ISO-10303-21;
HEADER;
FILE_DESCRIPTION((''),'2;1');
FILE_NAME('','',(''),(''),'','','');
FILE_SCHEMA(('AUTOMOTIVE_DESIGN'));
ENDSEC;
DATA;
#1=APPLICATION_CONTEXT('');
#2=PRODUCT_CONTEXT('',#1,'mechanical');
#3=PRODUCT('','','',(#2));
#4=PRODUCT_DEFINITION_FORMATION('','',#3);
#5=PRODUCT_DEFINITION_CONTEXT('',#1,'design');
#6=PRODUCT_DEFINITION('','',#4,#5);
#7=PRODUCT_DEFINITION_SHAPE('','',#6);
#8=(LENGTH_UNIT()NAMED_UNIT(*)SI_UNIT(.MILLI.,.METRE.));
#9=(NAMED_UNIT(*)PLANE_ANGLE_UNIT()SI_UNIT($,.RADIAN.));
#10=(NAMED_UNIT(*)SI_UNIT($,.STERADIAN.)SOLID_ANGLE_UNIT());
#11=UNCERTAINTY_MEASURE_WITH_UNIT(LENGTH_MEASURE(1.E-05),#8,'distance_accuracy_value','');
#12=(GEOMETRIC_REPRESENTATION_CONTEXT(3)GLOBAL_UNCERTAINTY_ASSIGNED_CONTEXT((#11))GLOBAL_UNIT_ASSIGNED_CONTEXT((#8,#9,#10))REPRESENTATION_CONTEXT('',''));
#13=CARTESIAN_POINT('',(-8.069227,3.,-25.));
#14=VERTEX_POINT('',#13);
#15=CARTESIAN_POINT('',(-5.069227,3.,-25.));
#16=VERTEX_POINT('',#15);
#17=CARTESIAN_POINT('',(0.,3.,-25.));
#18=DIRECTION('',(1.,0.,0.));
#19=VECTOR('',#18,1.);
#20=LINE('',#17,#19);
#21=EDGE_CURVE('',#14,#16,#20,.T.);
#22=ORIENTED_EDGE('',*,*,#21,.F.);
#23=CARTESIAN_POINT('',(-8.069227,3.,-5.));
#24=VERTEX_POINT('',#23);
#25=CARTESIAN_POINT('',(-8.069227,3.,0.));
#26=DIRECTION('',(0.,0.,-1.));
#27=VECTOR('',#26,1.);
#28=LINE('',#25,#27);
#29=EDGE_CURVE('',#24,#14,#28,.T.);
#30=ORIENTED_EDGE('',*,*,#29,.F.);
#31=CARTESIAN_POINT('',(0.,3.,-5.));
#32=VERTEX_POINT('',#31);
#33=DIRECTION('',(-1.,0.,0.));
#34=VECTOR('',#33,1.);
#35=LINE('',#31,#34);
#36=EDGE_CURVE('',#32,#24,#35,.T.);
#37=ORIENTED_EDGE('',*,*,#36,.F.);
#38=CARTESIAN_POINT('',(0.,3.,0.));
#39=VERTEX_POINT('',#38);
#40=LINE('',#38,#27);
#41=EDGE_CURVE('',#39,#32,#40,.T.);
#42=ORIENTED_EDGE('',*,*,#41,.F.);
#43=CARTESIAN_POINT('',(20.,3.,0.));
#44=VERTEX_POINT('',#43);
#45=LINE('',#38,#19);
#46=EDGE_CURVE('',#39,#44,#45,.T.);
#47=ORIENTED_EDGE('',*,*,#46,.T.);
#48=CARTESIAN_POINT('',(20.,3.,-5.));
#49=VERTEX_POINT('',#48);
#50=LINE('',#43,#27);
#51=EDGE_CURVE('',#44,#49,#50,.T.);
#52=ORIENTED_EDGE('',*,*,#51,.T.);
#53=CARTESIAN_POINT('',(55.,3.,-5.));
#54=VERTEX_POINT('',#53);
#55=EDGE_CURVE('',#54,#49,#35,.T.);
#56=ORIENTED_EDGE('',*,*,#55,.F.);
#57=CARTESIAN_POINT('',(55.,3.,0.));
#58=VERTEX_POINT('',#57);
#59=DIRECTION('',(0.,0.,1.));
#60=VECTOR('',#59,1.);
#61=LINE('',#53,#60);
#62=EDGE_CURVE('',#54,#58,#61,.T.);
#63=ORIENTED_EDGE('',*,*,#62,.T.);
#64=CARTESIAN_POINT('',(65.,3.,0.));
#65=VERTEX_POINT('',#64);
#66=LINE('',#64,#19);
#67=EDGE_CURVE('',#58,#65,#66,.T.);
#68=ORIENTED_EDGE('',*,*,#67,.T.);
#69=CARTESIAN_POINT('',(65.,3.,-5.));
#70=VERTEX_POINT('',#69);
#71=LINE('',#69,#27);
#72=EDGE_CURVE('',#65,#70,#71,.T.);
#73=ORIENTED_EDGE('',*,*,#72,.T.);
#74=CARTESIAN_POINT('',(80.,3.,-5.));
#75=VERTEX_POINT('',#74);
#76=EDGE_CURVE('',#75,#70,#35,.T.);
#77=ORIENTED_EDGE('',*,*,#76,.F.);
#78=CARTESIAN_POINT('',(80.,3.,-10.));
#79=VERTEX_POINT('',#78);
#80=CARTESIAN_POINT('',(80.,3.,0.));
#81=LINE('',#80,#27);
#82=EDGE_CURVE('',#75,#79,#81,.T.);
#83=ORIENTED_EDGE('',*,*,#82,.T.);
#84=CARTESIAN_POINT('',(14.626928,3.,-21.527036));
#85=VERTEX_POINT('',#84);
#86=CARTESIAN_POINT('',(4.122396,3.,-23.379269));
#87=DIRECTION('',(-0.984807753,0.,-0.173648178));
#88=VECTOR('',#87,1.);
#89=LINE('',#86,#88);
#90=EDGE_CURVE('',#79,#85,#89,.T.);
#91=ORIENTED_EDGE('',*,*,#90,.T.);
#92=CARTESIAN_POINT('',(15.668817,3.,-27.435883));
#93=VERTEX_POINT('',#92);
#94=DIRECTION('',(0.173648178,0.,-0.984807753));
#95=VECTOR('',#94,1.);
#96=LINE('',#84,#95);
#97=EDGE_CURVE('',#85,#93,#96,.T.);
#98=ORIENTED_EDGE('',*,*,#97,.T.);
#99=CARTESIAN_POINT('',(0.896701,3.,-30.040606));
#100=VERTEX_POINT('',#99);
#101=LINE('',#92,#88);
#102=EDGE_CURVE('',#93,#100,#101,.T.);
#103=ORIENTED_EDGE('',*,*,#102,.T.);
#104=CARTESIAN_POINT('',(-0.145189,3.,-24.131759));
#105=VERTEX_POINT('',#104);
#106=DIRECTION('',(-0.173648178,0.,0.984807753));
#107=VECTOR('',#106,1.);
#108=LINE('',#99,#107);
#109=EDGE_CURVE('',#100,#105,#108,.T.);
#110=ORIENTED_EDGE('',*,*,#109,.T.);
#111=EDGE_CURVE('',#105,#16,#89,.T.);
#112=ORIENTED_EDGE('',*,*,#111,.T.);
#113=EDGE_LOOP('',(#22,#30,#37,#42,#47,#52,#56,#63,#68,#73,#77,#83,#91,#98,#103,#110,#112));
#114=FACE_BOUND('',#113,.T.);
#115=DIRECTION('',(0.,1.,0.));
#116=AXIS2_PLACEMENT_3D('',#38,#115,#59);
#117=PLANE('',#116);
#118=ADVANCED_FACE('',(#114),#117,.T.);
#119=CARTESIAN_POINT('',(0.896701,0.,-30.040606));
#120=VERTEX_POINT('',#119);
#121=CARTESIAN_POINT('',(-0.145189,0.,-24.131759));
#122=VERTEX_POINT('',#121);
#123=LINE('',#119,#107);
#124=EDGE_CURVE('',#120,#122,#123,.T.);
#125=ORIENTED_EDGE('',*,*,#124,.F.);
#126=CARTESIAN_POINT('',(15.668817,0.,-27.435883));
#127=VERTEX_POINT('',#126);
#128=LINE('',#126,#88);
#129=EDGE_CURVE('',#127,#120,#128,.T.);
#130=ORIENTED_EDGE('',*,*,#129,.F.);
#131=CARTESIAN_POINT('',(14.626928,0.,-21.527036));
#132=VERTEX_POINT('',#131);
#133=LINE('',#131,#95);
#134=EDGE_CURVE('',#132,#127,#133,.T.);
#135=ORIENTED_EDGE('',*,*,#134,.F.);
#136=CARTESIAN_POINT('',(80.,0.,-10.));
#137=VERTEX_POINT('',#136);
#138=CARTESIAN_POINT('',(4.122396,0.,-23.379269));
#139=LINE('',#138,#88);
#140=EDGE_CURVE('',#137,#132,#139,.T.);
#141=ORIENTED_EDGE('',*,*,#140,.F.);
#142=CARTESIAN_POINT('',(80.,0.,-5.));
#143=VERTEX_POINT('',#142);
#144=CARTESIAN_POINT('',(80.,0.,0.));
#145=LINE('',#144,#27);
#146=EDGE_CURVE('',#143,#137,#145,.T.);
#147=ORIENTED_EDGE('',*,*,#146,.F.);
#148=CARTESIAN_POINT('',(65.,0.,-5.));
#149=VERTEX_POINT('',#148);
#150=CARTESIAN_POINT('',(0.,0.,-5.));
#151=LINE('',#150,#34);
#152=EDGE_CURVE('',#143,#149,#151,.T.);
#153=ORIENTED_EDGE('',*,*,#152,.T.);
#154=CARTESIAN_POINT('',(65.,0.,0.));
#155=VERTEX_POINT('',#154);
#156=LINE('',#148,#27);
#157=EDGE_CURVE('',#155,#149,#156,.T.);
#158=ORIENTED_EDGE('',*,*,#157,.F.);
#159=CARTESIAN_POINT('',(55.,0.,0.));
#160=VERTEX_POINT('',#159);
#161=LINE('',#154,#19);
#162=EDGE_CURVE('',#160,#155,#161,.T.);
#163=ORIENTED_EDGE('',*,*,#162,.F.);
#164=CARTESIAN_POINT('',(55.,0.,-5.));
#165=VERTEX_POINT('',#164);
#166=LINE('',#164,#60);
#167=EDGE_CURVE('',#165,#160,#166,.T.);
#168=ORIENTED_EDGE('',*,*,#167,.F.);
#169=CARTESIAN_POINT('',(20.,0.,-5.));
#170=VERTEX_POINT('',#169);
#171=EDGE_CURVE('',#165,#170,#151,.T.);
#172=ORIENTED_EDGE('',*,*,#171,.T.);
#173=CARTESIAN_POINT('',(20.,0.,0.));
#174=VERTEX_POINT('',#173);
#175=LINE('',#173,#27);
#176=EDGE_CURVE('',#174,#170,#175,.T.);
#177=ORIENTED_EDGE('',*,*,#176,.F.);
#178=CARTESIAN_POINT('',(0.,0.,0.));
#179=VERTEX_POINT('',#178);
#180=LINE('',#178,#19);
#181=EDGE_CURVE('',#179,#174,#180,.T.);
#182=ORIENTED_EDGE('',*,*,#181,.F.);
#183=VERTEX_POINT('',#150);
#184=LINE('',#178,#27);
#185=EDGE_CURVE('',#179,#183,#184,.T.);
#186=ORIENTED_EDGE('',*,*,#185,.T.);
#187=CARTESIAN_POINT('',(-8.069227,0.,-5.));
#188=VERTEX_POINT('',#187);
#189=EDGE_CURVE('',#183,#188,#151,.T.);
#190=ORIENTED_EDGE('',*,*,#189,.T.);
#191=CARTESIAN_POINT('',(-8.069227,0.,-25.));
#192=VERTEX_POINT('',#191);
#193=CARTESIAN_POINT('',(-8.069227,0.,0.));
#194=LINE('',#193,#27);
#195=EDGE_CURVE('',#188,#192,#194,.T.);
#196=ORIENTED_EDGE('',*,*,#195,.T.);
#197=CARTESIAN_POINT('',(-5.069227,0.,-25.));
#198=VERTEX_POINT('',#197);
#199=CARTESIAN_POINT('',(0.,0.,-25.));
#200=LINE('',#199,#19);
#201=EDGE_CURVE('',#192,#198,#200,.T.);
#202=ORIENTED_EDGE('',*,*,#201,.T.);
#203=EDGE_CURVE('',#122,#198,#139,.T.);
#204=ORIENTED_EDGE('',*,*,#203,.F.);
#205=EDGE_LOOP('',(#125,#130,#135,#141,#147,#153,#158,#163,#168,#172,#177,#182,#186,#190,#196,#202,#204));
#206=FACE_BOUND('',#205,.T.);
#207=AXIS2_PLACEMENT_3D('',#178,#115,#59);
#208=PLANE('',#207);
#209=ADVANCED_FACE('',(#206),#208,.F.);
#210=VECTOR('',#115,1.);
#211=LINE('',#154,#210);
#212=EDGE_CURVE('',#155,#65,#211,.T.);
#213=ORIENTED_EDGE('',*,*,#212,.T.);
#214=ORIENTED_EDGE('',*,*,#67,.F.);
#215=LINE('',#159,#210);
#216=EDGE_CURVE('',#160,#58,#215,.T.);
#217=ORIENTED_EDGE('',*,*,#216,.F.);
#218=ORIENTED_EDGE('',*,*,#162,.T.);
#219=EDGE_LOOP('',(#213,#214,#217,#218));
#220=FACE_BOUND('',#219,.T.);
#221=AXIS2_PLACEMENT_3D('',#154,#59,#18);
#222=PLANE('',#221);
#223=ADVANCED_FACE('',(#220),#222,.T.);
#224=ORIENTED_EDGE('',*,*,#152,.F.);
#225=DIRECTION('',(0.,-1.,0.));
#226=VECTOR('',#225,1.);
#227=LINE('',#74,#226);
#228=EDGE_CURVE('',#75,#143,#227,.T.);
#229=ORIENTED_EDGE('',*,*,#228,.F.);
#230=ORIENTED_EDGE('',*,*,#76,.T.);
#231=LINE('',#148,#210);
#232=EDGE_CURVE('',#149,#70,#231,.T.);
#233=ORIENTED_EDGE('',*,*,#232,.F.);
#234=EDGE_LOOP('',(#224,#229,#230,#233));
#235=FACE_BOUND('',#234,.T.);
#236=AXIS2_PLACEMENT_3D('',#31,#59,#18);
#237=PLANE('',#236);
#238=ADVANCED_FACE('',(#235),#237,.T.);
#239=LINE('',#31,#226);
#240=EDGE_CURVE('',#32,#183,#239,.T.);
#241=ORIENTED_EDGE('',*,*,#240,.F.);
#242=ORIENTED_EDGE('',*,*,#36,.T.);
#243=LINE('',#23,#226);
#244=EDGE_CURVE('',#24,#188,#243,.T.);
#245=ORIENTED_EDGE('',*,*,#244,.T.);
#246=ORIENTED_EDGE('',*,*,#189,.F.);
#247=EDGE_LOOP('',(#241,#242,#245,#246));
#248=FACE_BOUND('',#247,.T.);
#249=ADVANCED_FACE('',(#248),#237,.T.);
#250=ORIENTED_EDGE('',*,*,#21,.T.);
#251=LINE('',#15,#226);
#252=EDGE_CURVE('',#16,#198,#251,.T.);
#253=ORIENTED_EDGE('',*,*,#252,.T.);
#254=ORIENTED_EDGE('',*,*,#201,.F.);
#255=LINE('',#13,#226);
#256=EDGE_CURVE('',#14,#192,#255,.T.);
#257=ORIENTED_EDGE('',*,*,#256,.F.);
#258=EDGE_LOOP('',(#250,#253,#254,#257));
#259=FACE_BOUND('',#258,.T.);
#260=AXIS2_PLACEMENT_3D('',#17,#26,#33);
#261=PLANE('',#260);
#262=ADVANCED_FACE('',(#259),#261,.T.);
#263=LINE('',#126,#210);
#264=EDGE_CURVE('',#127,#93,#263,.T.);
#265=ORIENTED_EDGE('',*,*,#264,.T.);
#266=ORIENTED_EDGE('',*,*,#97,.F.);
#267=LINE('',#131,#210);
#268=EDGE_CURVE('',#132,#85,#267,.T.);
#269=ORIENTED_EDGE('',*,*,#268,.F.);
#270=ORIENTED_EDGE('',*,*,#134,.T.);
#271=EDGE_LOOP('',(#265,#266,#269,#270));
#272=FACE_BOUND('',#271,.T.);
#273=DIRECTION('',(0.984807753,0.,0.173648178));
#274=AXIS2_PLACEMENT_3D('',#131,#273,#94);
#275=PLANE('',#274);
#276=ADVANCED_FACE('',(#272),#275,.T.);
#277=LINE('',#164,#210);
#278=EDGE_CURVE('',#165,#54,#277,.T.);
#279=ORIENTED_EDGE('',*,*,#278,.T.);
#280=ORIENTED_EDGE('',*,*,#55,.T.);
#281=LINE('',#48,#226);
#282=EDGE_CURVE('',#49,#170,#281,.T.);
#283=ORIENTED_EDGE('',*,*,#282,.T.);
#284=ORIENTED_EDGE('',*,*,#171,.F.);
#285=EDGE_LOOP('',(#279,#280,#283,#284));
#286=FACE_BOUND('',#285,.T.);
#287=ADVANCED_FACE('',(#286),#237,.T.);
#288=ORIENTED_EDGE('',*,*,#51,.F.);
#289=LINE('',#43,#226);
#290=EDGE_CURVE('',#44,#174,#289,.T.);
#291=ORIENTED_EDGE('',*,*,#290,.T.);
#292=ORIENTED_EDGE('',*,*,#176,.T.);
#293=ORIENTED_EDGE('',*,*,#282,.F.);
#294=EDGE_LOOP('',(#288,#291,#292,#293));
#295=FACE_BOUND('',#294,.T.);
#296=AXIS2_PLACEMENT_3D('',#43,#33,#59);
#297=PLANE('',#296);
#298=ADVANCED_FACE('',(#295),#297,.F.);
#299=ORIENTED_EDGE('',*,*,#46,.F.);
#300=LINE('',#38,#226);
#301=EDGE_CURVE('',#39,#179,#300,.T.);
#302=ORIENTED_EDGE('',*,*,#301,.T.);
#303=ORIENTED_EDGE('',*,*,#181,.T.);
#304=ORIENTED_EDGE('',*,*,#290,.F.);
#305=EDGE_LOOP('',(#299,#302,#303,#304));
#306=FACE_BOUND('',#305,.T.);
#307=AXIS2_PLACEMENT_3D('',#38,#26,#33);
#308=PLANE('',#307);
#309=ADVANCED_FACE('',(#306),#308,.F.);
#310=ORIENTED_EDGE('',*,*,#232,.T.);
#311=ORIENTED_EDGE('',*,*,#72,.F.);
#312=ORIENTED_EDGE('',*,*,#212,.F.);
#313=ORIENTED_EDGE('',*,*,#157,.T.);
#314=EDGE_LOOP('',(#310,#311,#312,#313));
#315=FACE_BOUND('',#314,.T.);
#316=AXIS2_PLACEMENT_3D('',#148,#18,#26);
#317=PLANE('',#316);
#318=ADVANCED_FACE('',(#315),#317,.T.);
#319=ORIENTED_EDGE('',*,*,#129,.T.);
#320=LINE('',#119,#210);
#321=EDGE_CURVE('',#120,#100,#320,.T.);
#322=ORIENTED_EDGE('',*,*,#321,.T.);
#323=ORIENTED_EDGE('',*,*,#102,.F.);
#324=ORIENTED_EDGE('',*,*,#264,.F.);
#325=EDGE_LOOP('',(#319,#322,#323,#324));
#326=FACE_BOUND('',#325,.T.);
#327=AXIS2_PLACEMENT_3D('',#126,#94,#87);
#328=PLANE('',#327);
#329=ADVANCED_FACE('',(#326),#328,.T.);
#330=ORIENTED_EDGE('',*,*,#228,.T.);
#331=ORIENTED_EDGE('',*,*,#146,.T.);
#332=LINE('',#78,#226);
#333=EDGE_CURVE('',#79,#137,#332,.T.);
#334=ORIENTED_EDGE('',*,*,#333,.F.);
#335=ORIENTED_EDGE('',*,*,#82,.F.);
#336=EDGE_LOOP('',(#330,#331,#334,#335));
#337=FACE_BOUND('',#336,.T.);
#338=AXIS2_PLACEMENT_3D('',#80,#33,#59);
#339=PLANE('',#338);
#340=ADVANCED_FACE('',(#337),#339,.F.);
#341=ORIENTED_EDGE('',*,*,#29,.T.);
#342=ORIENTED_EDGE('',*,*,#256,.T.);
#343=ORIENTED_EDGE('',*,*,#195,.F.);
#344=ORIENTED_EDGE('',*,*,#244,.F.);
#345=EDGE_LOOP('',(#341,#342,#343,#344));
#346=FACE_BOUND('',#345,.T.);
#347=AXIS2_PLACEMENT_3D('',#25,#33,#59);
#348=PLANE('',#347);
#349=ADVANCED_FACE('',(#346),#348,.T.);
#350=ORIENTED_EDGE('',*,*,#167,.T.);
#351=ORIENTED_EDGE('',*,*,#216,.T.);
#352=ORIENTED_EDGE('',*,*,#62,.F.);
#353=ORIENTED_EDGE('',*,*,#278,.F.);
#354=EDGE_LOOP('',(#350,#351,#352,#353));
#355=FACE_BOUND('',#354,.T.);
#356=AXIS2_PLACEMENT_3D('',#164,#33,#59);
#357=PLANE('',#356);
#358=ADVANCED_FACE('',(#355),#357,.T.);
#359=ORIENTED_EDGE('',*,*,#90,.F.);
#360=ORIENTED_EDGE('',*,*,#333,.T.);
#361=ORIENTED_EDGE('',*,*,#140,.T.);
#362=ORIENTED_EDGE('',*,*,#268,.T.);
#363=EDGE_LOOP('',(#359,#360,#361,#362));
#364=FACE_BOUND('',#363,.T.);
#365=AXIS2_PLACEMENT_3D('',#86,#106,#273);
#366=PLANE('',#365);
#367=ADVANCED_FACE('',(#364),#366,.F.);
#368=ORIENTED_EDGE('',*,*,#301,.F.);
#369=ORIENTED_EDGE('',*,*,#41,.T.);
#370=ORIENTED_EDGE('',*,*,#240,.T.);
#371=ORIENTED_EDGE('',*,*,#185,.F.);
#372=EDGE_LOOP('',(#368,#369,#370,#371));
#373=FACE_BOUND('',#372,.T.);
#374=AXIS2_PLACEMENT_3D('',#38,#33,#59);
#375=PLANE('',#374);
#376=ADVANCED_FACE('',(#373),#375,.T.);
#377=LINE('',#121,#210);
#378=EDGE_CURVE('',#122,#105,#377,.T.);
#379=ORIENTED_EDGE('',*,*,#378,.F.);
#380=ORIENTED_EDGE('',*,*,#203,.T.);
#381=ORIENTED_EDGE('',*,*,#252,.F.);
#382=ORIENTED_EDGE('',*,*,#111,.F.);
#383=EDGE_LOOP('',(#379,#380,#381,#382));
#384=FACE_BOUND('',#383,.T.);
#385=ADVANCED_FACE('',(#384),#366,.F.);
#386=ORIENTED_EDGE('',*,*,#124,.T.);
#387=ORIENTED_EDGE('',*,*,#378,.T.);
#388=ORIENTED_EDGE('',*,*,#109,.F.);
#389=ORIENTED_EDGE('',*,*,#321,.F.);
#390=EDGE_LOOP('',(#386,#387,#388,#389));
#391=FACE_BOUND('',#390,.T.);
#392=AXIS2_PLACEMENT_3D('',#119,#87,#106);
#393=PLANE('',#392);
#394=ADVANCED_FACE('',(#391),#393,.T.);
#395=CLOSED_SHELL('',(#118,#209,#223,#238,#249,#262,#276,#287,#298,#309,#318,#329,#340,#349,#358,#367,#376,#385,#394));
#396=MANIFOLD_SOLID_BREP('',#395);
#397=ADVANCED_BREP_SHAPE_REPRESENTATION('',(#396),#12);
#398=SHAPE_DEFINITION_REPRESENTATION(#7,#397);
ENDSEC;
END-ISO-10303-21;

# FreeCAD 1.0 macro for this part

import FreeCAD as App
import Part
import Sketcher
from FreeCAD import Vector
Q = App.Units.Quantity

doc = App.newDocument("Part")
params = doc.addObject("Spreadsheet::Sheet", "Params")
for row, (alias, value) in enumerate([
    ("sketch1_width", "60 mm"),
    ("sketch1_width2", "3 mm"),
    ("sketch1_width3", "20 mm"),
    ("sketch1_height", "5 mm"),
    ("pad1_length", "3 mm"),
    ("sketch2_width", "10 mm"),
    ("sketch2_height", "5 mm"),
    ("pad2_length", "3 mm"),
    ("sketch3_length", "15 mm"),
    ("sketch3_length2", "6 mm"),
    ("pad3_length", "3 mm"),
], start=1):
    params.set(f"A{row}", alias)
    params.set(f"B{row}", "=" + value)
    params.setAlias(f"B{row}", alias)

body = doc.addObject("PartDesign::Body", "Body")

# Sketch on XZ plane
sketch1 = body.newObject("Sketcher::SketchObject", "Sketch")
sketch1.AttachmentSupport = (doc.getObject("XZ_Plane"), [""])
sketch1.MapMode = "FlatFace"
sketch1.addGeometry(Part.LineSegment(Vector(20, 0, 0), Vector(20, -5, 0)), False)
sketch1.addGeometry(Part.LineSegment(Vector(20, -5, 0), Vector(80, -5, 0)), False)
sketch1.addGeometry(Part.LineSegment(Vector(80, -5, 0), Vector(80, -10, 0)), False)
sketch1.addGeometry(Part.LineSegment(Vector(80, -10, 0), Vector(-5.1, -25, 0)), False)
sketch1.addGeometry(Part.LineSegment(Vector(-5.1, -25, 0), Vector(-8.1, -25, 0)), False)
sketch1.addGeometry(Part.LineSegment(Vector(-8.1, -25, 0), Vector(-8.1, -5, 0)), False)
sketch1.addGeometry(Part.LineSegment(Vector(-8.1, -5, 0), Vector(0, -5, 0)), False)
sketch1.addGeometry(Part.LineSegment(Vector(0, -5, 0), Vector(0, 0, 0)), False)
sketch1.addGeometry(Part.LineSegment(Vector(0, 0, 0), Vector(20, 0, 0)), False)
sketch1.addConstraint(Sketcher.Constraint("Coincident", 0, 2, 1, 1))
sketch1.addConstraint(Sketcher.Constraint("Coincident", 1, 2, 2, 1))
sketch1.addConstraint(Sketcher.Constraint("Coincident", 2, 2, 3, 1))
sketch1.addConstraint(Sketcher.Constraint("Coincident", 3, 2, 4, 1))
sketch1.addConstraint(Sketcher.Constraint("Coincident", 4, 2, 5, 1))
sketch1.addConstraint(Sketcher.Constraint("Coincident", 5, 2, 6, 1))
sketch1.addConstraint(Sketcher.Constraint("Coincident", 6, 2, 7, 1))
sketch1.addConstraint(Sketcher.Constraint("Coincident", 7, 2, 8, 1))
sketch1.addConstraint(Sketcher.Constraint("Coincident", 8, 2, 0, 1))
sketch1.addConstraint(Sketcher.Constraint("Vertical", 0))
sketch1.addConstraint(Sketcher.Constraint("Horizontal", 1))
sketch1.addConstraint(Sketcher.Constraint("Vertical", 2))
sketch1.addConstraint(Sketcher.Constraint("Horizontal", 4))
sketch1.addConstraint(Sketcher.Constraint("Vertical", 5))
sketch1.addConstraint(Sketcher.Constraint("Horizontal", 6))
sketch1.addConstraint(Sketcher.Constraint("Vertical", 7))
sketch1.addConstraint(Sketcher.Constraint("Horizontal", 8))
sketch1.addConstraint(Sketcher.Constraint("Coincident", 7, 2, -1, 1))
sketch1.addConstraint(Sketcher.Constraint("Horizontal", 1, 2, 5, 2))
sketch1.addConstraint(Sketcher.Constraint("Equal", 0, 2))
sketch1.addConstraint(Sketcher.Constraint("Equal", 8, 5))
sketch1.addConstraint(Sketcher.Constraint("DistanceX", 1, 1, 1, 2, 60.0))
sketch1.addConstraint(Sketcher.Constraint("DistanceX", 4, 2, 4, 1, 3.0))
sketch1.addConstraint(Sketcher.Constraint("DistanceX", 8, 1, 8, 2, 20.0))
sketch1.addConstraint(Sketcher.Constraint("DistanceY", 0, 2, 0, 1, 5.0))
sketch1.addConstraint(Sketcher.Constraint("Angle", 3, Q("-170 deg")))
sketch1.setExpression("Constraints[21]", "Params.sketch1_width")
sketch1.setExpression("Constraints[22]", "Params.sketch1_width2")
sketch1.setExpression("Constraints[23]", "Params.sketch1_width3")
sketch1.setExpression("Constraints[24]", "Params.sketch1_height")
pad1 = body.newObject("PartDesign::Pad", "Pad")
pad1.Profile = sketch1
pad1.setExpression("Length", "Params.pad1_length")
pad1.Reversed = True

# Sketch on XZ plane
sketch2 = body.newObject("Sketcher::SketchObject", "Sketch001")
sketch2.AttachmentSupport = (doc.getObject("XZ_Plane"), [""])
sketch2.MapMode = "FlatFace"
sketch2.AttachmentOffset = App.Placement(Vector(0, 0, -3), App.Rotation())
sketch2.addGeometry(Part.LineSegment(Vector(55, -5, 0), Vector(55, 0, 0)), False)
sketch2.addGeometry(Part.LineSegment(Vector(55, 0, 0), Vector(65, 0, 0)), False)
sketch2.addGeometry(Part.LineSegment(Vector(65, 0, 0), Vector(65, -5, 0)), False)
sketch2.addGeometry(Part.LineSegment(Vector(65, -5, 0), Vector(55, -5, 0)), False)
sketch2.addConstraint(Sketcher.Constraint("Coincident", 0, 2, 1, 1))
sketch2.addConstraint(Sketcher.Constraint("Coincident", 1, 2, 2, 1))
sketch2.addConstraint(Sketcher.Constraint("Coincident", 2, 2, 3, 1))
sketch2.addConstraint(Sketcher.Constraint("Coincident", 3, 2, 0, 1))
sketch2.addConstraint(Sketcher.Constraint("Vertical", 0))
sketch2.addConstraint(Sketcher.Constraint("Horizontal", 1))
sketch2.addConstraint(Sketcher.Constraint("Vertical", 2))
sketch2.addConstraint(Sketcher.Constraint("Horizontal", 3))
sketch2.addConstraint(Sketcher.Constraint("PointOnObject", 0, 2, -1))
sketch2.addConstraint(Sketcher.Constraint("DistanceX", 1, 1, 1, 2, 10.0))
sketch2.addConstraint(Sketcher.Constraint("DistanceY", 0, 1, 0, 2, 5.0))
sketch2.addConstraint(Sketcher.Constraint("DistanceX", -1, 1, 0, 2, 55.0))
sketch2.setExpression("Constraints[9]", "Params.sketch2_width")
sketch2.setExpression("Constraints[10]", "Params.sketch2_height")
pad2 = body.newObject("PartDesign::Pad", "Pad001")
pad2.Profile = sketch2
pad2.setExpression("Length", "Params.pad2_length")

# Sketch on XZ plane
sketch3 = body.newObject("Sketcher::SketchObject", "Sketch002")
sketch3.AttachmentSupport = (doc.getObject("XZ_Plane"), [""])
sketch3.MapMode = "FlatFace"
sketch3.AttachmentOffset = App.Placement(Vector(0, 0, -3), App.Rotation())
sketch3.addGeometry(Part.LineSegment(Vector(0, -24, 0), Vector(15, -22, 0)), False)
sketch3.addGeometry(Part.LineSegment(Vector(15, -22, 0), Vector(16, -27, 0)), False)
sketch3.addGeometry(Part.LineSegment(Vector(16, -27, 0), Vector(1, -30, 0)), False)
sketch3.addGeometry(Part.LineSegment(Vector(1, -30, 0), Vector(0, -24, 0)), False)
sketch3.addConstraint(Sketcher.Constraint("Coincident", 0, 2, 1, 1))
sketch3.addConstraint(Sketcher.Constraint("Coincident", 1, 2, 2, 1))
sketch3.addConstraint(Sketcher.Constraint("Coincident", 2, 2, 3, 1))
sketch3.addConstraint(Sketcher.Constraint("Coincident", 3, 2, 0, 1))
sketch3.addConstraint(Sketcher.Constraint("Perpendicular", 0, 1))
sketch3.addConstraint(Sketcher.Constraint("Perpendicular", 1, 2))
sketch3.addConstraint(Sketcher.Constraint("Perpendicular", 2, 3))
sketch3.addConstraint(Sketcher.Constraint("Angle", 0, Q("10 deg")))
sketch3.addConstraint(Sketcher.Constraint("Distance", 0, 15.0))
sketch3.addConstraint(Sketcher.Constraint("Distance", 1, 6.0))
sketch3.addConstraint(Sketcher.Constraint("DistanceX", -1, 1, 2, 2, 0.896701))
sketch3.addConstraint(Sketcher.Constraint("DistanceY", 3, 2, -1, 1, 24.131759))
sketch3.setExpression("Constraints[8]", "Params.sketch3_length")
sketch3.setExpression("Constraints[9]", "Params.sketch3_length2")
pad3 = body.newObject("PartDesign::Pad", "Pad002")
pad3.Profile = sketch3
pad3.setExpression("Length", "Params.pad3_length")

doc.recompute()
